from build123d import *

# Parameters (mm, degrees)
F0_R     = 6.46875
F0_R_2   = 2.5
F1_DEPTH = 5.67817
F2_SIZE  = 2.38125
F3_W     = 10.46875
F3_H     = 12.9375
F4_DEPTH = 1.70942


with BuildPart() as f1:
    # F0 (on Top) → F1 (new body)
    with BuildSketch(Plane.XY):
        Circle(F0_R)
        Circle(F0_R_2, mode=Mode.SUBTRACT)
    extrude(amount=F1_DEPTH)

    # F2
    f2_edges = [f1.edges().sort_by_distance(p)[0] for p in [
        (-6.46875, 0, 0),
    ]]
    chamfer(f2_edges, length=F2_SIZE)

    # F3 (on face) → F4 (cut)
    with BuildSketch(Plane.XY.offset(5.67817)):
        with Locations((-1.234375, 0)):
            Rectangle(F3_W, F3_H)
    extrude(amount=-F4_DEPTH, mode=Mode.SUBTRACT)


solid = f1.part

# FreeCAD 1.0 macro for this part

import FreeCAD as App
import Part
import Sketcher
from FreeCAD import Vector
Q = App.Units.Quantity


def edges_at(feature, points):
    """Names of the edges that pass closest to the given points."""
    edges = feature.Shape.Edges
    near = lambda p: min(range(len(edges)), key=lambda i: edges[i].distToShape(Part.Vertex(*p))[0])
    return sorted({f"Edge{near(p) + 1}" for p in points})

doc = App.newDocument("Part")
body = doc.addObject("PartDesign::Body", "Body")

sketch1 = body.newObject("Sketcher::SketchObject", "Sketch")
sketch1.AttachmentSupport = (doc.getObject("XY_Plane"), [""])
sketch1.MapMode = "FlatFace"
sketch1.addGeometry([
    Part.Circle(Vector(0, 0, 0), Vector(0, 0, 1), 6.5),
    Part.Circle(Vector(0, 0, 0), Vector(0, 0, 1), 2.5),
], False)
sketch1.addConstraint([
    Sketcher.Constraint("Coincident", 0, 3, -1, 1),
    Sketcher.Constraint("Coincident", 1, 3, -1, 1),
    Sketcher.Constraint("Diameter", 1, Q("5 mm")),
    Sketcher.Constraint("Diameter", 0, Q("12.9375 mm")),
])
pad1 = body.newObject("PartDesign::Pad", "Pad")
pad1.Profile = sketch1
pad1.Length = 5.67817
doc.recompute()

chamfer = body.newObject("PartDesign::Chamfer", "Chamfer")
chamfer.Base = (pad1, edges_at(pad1, [(-6.469, 0, 0)]))
chamfer.Size = 2.38125

sketch2 = body.newObject("Sketcher::SketchObject", "Sketch001")
sketch2.AttachmentSupport = (doc.getObject("XY_Plane"), [""])
sketch2.MapMode = "FlatFace"
sketch2.AttachmentOffset = App.Placement(Vector(0, 0, 5.67817), App.Rotation())
sketch2.addGeometry([
    Part.LineSegment(Vector(-6, 6, 0), Vector(-6, -6, 0)),
    Part.LineSegment(Vector(-6, -6, 0), Vector(4, -6, 0)),
    Part.LineSegment(Vector(4, -6, 0), Vector(4, 6, 0)),
    Part.LineSegment(Vector(4, 6, 0), Vector(-6, 6, 0)),
], False)
sketch2.addConstraint([
    Sketcher.Constraint("Coincident", 0, 2, 1, 1),
    Sketcher.Constraint("Coincident", 1, 2, 2, 1),
    Sketcher.Constraint("Coincident", 2, 2, 3, 1),
    Sketcher.Constraint("Coincident", 3, 2, 0, 1),
    Sketcher.Constraint("Vertical", 0),
    Sketcher.Constraint("Horizontal", 1),
    Sketcher.Constraint("Vertical", 2),
    Sketcher.Constraint("Horizontal", 3),
    Sketcher.Constraint("DistanceX", -1, 1, 1, 2, Q("4 mm")),
    Sketcher.Constraint("DistanceY", 0, 2, 0, 1, Q("12.9375 mm")),
    Sketcher.Constraint("DistanceX", 1, 1, 1, 2, Q("10.46875 mm")),
    Sketcher.Constraint("DistanceY", 0, 2, -1, 1, Q("6.46875 mm")),
])
pocket1 = body.newObject("PartDesign::Pocket", "Pocket")
pocket1.Profile = sketch2
pocket1.Length = 1.70942

doc.recompute()
